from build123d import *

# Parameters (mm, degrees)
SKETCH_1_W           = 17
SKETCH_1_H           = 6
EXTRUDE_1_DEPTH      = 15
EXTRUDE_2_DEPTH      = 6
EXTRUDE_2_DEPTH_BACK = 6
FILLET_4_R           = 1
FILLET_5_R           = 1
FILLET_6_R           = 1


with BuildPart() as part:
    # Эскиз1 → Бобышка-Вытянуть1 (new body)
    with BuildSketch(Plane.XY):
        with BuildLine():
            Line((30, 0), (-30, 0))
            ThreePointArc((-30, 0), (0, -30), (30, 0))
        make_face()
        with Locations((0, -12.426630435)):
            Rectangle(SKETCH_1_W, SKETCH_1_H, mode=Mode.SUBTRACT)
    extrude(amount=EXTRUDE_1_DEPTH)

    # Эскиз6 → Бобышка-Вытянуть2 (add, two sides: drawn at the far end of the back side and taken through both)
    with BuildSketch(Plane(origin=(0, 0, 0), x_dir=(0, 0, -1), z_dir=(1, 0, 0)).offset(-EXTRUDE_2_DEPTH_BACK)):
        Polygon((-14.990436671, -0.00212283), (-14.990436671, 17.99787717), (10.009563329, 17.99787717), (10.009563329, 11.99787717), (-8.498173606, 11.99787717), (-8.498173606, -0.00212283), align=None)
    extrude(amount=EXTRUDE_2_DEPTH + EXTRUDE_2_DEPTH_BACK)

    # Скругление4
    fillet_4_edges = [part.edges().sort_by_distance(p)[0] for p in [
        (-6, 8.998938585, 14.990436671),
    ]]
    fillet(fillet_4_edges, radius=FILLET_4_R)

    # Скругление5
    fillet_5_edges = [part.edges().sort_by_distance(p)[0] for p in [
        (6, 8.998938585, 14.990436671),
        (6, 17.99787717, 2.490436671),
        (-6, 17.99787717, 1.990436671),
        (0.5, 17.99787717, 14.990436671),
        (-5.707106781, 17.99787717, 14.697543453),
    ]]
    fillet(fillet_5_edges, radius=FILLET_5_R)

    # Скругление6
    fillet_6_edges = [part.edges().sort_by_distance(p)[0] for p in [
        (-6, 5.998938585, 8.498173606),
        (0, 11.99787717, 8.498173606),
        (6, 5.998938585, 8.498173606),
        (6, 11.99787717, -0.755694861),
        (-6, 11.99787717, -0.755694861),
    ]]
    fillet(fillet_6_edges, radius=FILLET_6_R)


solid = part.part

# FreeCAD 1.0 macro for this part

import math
import FreeCAD as App
import Part
import Sketcher
Q = App.Units.Quantity


def edges_at(feature, points):
    """Names of the edges that pass closest to the given points."""
    edges = feature.Shape.Edges
    near = lambda p: min(range(len(edges)), key=lambda i: edges[i].distToShape(Part.Vertex(*p))[0])
    return sorted({f"Edge{near(p) + 1}" for p in points})

doc = App.newDocument("Part")
body = doc.addObject("PartDesign::Body", "Body")

sketch1 = body.newObject("Sketcher::SketchObject", "Sketch")
sketch1.AttachmentSupport = (doc.getObject("XY_Plane"), [""])
sketch1.MapMode = "FlatFace"
sketch1.addGeometry([
    Part.LineSegment(App.Vector(30, 0, 0), App.Vector(-30, 0, 0)),
    Part.ArcOfCircle(Part.Circle(App.Vector(0, 0, 0), App.Vector(0, 0, 1), 30), math.radians(180), math.radians(360)),
    Part.LineSegment(App.Vector(8.5, -15.42663, 0), App.Vector(-8.5, -15.42663, 0)),
    Part.LineSegment(App.Vector(-8.5, -15.42663, 0), App.Vector(-8.5, -9.42663, 0)),
    Part.LineSegment(App.Vector(-8.5, -9.42663, 0), App.Vector(8.5, -9.42663, 0)),
    Part.LineSegment(App.Vector(8.5, -9.42663, 0), App.Vector(8.5, -15.42663, 0)),
], False)
sketch1.addConstraint([
    Sketcher.Constraint("Coincident", 0, 1, 1, 2),
    Sketcher.Constraint("Coincident", 1, 1, 0, 2),
    Sketcher.Constraint("Coincident", 2, 2, 3, 1),
    Sketcher.Constraint("Coincident", 3, 2, 4, 1),
    Sketcher.Constraint("Coincident", 4, 2, 5, 1),
    Sketcher.Constraint("Coincident", 5, 2, 2, 1),
    Sketcher.Constraint("Horizontal", 0),
    Sketcher.Constraint("Horizontal", 2),
    Sketcher.Constraint("Vertical", 3),
    Sketcher.Constraint("Horizontal", 4),
    Sketcher.Constraint("Vertical", 5),
    Sketcher.Constraint("Coincident", 1, 3, -1, 1),
    Sketcher.Constraint("PointOnObject", 0, 1, -1),
    Sketcher.Constraint("Radius", 1, Q("30 mm")),
    Sketcher.Constraint("DistanceX", 2, 2, 2, 1, Q("17 mm")),
    Sketcher.Constraint("DistanceY", 3, 1, 3, 2, Q("6 mm")),
    Sketcher.Constraint("DistanceX", 2, 2, -1, 1, Q("8.5 mm")),
    Sketcher.Constraint("DistanceY", 2, 2, -1, 1, Q("15.42663 mm")),
])
pad1 = body.newObject("PartDesign::Pad", "Pad")
pad1.Profile = sketch1
pad1.Length = 15

sketch2 = body.newObject("Sketcher::SketchObject", "Sketch001")
sketch2.AttachmentSupport = (doc.getObject("YZ_Plane"), [""])
sketch2.MapMode = "FlatFace"
sketch2.addGeometry([
    Part.LineSegment(App.Vector(17.997877, 14.990437, 0), App.Vector(-0.002123, 14.990437, 0)),
    Part.LineSegment(App.Vector(-0.002123, 14.990437, 0), App.Vector(-0.002123, 8.498174, 0)),
    Part.LineSegment(App.Vector(-0.002123, 8.498174, 0), App.Vector(11.997877, 8.498174, 0)),
    Part.LineSegment(App.Vector(11.997877, 8.498174, 0), App.Vector(11.997877, -10.009563, 0)),
    Part.LineSegment(App.Vector(11.997877, -10.009563, 0), App.Vector(17.997877, -10.009563, 0)),
    Part.LineSegment(App.Vector(17.997877, -10.009563, 0), App.Vector(17.997877, 14.990437, 0)),
], False)
sketch2.addConstraint([
    Sketcher.Constraint("Coincident", 0, 2, 1, 1),
    Sketcher.Constraint("Coincident", 1, 2, 2, 1),
    Sketcher.Constraint("Coincident", 2, 2, 3, 1),
    Sketcher.Constraint("Coincident", 3, 2, 4, 1),
    Sketcher.Constraint("Coincident", 4, 2, 5, 1),
    Sketcher.Constraint("Coincident", 5, 2, 0, 1),
    Sketcher.Constraint("Horizontal", 0),
    Sketcher.Constraint("Vertical", 1),
    Sketcher.Constraint("Horizontal", 2),
    Sketcher.Constraint("Vertical", 3),
    Sketcher.Constraint("Horizontal", 4),
    Sketcher.Constraint("Vertical", 5),
    Sketcher.Constraint("DistanceX", 0, 2, 0, 1, Q("18 mm")),
    Sketcher.Constraint("DistanceX", 2, 1, 2, 2, Q("12 mm")),
    Sketcher.Constraint("DistanceY", 5, 1, 5, 2, Q("25 mm")),
    Sketcher.Constraint("DistanceY", 1, 2, 1, 1, Q("6.492263 mm")),
    Sketcher.Constraint("DistanceX", 0, 2, -1, 1, Q("0.002123 mm")),
    Sketcher.Constraint("DistanceY", -1, 1, 0, 2, Q("14.990437 mm")),
])
pad2 = body.newObject("PartDesign::Pad", "Pad001")
pad2.Profile = sketch2
pad2.Type = "TwoLengths"
pad2.Length = 6
pad2.Length2 = 6
doc.recompute()

fillet = body.newObject("PartDesign::Fillet", "Fillet")
fillet.Base = (pad2, edges_at(pad2, [(-6, 8.999, 14.99)]))
fillet.Radius = 1
doc.recompute()

fillet2 = body.newObject("PartDesign::Fillet", "Fillet001")
fillet2.Base = (fillet, edges_at(fillet, [
    (6, 8.999, 14.99),
    (6, 17.998, 2.49),
    (-6, 17.998, 1.99),
    (0.5, 17.998, 14.99),
    (-5.707, 17.998, 14.698),
]))
fillet2.Radius = 1
doc.recompute()

fillet3 = body.newObject("PartDesign::Fillet", "Fillet002")
fillet3.Base = (fillet2, edges_at(fillet2, [
    (-6, 5.999, 8.498),
    (0, 11.998, 8.498),
    (6, 5.999, 8.498),
    (6, 11.998, -0.756),
    (-6, 11.998, -0.756),
]))
fillet3.Radius = 1

doc.recompute()
